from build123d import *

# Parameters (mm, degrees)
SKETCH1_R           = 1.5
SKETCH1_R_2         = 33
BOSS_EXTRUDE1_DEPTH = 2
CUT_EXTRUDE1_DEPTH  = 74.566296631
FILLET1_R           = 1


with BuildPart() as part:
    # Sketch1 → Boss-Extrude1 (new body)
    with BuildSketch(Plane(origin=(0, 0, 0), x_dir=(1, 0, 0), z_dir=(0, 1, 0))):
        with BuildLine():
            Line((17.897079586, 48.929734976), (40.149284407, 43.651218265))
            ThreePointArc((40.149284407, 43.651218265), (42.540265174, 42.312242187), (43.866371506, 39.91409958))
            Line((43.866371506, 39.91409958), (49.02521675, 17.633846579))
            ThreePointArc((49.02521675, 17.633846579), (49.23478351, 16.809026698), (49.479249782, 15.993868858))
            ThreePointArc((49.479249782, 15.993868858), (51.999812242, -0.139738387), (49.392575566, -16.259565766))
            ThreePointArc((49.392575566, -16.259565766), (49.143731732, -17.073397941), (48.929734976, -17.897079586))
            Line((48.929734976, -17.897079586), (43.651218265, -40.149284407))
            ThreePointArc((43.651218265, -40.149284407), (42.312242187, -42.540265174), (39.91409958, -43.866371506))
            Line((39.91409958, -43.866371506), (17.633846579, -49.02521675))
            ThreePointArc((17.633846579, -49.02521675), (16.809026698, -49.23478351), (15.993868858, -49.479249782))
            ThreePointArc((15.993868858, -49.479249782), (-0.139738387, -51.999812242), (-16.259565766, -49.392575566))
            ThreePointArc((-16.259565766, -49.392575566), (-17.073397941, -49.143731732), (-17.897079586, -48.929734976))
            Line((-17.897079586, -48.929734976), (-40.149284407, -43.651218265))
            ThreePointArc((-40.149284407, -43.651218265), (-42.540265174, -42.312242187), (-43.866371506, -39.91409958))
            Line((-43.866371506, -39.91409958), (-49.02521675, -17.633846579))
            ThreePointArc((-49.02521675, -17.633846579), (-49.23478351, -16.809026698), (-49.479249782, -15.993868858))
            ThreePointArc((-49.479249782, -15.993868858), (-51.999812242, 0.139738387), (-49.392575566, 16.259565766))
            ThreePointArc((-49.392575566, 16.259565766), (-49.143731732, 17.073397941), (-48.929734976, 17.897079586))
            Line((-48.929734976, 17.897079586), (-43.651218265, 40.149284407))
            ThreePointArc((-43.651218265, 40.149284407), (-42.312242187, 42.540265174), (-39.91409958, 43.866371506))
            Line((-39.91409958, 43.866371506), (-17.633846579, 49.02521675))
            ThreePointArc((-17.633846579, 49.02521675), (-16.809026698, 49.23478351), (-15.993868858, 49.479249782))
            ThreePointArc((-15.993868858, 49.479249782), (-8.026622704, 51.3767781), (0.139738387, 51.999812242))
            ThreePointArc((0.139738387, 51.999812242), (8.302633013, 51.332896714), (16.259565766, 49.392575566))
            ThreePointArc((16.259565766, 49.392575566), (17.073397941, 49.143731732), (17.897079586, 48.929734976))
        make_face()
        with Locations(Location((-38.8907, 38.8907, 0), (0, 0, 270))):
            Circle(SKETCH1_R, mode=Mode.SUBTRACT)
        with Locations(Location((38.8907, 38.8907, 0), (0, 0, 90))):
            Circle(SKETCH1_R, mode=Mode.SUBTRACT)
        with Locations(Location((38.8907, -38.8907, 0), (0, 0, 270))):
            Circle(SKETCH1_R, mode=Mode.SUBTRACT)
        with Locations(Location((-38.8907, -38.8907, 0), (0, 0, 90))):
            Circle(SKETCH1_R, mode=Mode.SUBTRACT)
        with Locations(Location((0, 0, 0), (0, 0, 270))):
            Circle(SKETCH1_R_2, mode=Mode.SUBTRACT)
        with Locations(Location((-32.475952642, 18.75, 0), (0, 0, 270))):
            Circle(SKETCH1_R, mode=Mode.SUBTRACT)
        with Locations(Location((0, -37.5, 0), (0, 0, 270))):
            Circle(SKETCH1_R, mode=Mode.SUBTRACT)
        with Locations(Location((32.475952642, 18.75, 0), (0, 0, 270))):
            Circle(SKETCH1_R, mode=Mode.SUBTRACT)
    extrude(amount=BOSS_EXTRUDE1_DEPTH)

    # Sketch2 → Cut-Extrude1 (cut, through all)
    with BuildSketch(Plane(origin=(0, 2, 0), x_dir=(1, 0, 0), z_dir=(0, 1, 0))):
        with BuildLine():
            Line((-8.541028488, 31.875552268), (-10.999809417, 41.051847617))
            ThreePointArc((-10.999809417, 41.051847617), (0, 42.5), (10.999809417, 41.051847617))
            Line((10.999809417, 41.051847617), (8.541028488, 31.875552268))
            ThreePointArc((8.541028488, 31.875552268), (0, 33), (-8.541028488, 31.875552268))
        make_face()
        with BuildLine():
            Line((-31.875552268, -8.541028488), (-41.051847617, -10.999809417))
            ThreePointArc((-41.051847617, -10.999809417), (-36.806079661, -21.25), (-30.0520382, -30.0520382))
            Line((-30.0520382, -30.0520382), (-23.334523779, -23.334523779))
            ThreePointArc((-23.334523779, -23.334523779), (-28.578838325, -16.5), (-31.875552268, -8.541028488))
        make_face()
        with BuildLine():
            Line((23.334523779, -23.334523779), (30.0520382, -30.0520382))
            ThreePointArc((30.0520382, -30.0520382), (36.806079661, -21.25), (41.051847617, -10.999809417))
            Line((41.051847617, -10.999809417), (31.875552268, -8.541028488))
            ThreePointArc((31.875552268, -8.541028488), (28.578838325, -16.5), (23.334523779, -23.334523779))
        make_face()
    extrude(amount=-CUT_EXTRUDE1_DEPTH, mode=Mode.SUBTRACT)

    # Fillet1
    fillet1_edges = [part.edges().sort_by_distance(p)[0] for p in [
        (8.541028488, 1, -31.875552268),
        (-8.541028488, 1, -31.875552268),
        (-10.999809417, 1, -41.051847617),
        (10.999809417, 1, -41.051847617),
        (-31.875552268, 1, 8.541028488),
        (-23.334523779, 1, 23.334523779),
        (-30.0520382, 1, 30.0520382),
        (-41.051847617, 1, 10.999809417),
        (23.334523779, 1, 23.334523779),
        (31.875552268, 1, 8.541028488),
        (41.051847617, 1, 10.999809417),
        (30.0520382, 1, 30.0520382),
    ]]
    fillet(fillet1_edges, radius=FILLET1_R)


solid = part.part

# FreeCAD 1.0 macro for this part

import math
import FreeCAD as App
import Part
import Sketcher
Q = App.Units.Quantity


def edges_at(feature, points):
    """Names of the edges that pass closest to the given points."""
    edges = feature.Shape.Edges
    near = lambda p: min(range(len(edges)), key=lambda i: edges[i].distToShape(Part.Vertex(*p))[0])
    return sorted({f"Edge{near(p) + 1}" for p in points})

doc = App.newDocument("Part")
body = doc.addObject("PartDesign::Body", "Body")

sketch1 = doc.addObject("Sketcher::SketchObject", "Sketch")
body.addObject(sketch1)
sketch1.AttachmentSupport = (doc.XZ_Plane, [""])
sketch1.MapMode = "FlatFace"
sketch1.addGeometry(Part.LineSegment(App.Vector(40.1, -43.7, 0), App.Vector(17.9, -48.9, 0)), False)
sketch1.addGeometry(Part.ArcOfCircle(Part.Circle(App.Vector(22.5, -68.4, 0), App.Vector(0, 0, 1), 20), math.radians(103.34), math.radians(108.22)), False)
sketch1.addGeometry(Part.ArcOfCircle(Part.Circle(App.Vector(0, 0, 0), App.Vector(0, 0, 1), 52), math.radians(-89.85), math.radians(-71.78)), False)
sketch1.addGeometry(Part.ArcOfCircle(Part.Circle(App.Vector(0, 0, 0), App.Vector(0, 0, 1), 52), math.radians(-107.91), math.radians(-89.85)), False)
sketch1.addGeometry(Part.ArcOfCircle(Part.Circle(App.Vector(-22.1, -68.5, 0), App.Vector(0, 0, 1), 20), math.radians(72.09), math.radians(76.96)), False)
sketch1.addGeometry(Part.LineSegment(App.Vector(-17.6, -49, 0), App.Vector(-39.9, -43.9, 0)), False)
sketch1.addGeometry(Part.ArcOfCircle(Part.Circle(App.Vector(-38.8, -39, 0), App.Vector(0, 0, 1), 5), math.radians(-167), math.radians(-103)), False)
sketch1.addGeometry(Part.LineSegment(App.Vector(-43.7, -40.1, 0), App.Vector(-48.9, -17.9, 0)), False)
sketch1.addGeometry(Part.ArcOfCircle(Part.Circle(App.Vector(-68.4, -22.5, 0), App.Vector(0, 0, 1), 20), math.radians(13.34), math.radians(18.22)), False)
sketch1.addGeometry(Part.ArcOfCircle(Part.Circle(App.Vector(0, 0, 0), App.Vector(0, 0, 1), 52), math.radians(162), math.radians(198)), False)
sketch1.addGeometry(Part.ArcOfCircle(Part.Circle(App.Vector(-68.5, 22.1, 0), App.Vector(0, 0, 1), 20), math.radians(-17.91), math.radians(-13.04)), False)
sketch1.addGeometry(Part.LineSegment(App.Vector(-49, 17.6, 0), App.Vector(-43.9, 39.9, 0)), False)
sketch1.addGeometry(Part.ArcOfCircle(Part.Circle(App.Vector(-39, 38.8, 0), App.Vector(0, 0, 1), 5), math.radians(103), math.radians(167)), False)
sketch1.addGeometry(Part.LineSegment(App.Vector(-40.1, 43.7, 0), App.Vector(-17.9, 48.9, 0)), False)
sketch1.addGeometry(Part.ArcOfCircle(Part.Circle(App.Vector(-22.5, 68.4, 0), App.Vector(0, 0, 1), 20), math.radians(-76.66), math.radians(-71.78)), False)
sketch1.addGeometry(Part.ArcOfCircle(Part.Circle(App.Vector(0, 0, 0), App.Vector(0, 0, 1), 52), math.radians(72), math.radians(108)), False)
sketch1.addGeometry(Part.ArcOfCircle(Part.Circle(App.Vector(22.1, 68.5, 0), App.Vector(0, 0, 1), 20), math.radians(-107.91), math.radians(-103.04)), False)
sketch1.addGeometry(Part.LineSegment(App.Vector(17.6, 49, 0), App.Vector(39.9, 43.9, 0)), False)
sketch1.addGeometry(Part.ArcOfCircle(Part.Circle(App.Vector(38.8, 39, 0), App.Vector(0, 0, 1), 5), math.radians(13), math.radians(77)), False)
sketch1.addGeometry(Part.LineSegment(App.Vector(43.7, 40.1, 0), App.Vector(48.9, 17.9, 0)), False)
sketch1.addGeometry(Part.ArcOfCircle(Part.Circle(App.Vector(68.4, 22.5, 0), App.Vector(0, 0, 1), 20), math.radians(-166.66), math.radians(-161.78)), False)
sketch1.addGeometry(Part.ArcOfCircle(Part.Circle(App.Vector(0, 0, 0), App.Vector(0, 0, 1), 52), math.radians(-18), math.radians(18)), False)
sketch1.addGeometry(Part.ArcOfCircle(Part.Circle(App.Vector(68.5, -22.1, 0), App.Vector(0, 0, 1), 20), math.radians(162.09), math.radians(166.96)), False)
sketch1.addGeometry(Part.LineSegment(App.Vector(49, -17.6, 0), App.Vector(43.9, -39.9, 0)), False)
sketch1.addGeometry(Part.ArcOfCircle(Part.Circle(App.Vector(39, -38.8, 0), App.Vector(0, 0, 1), 5), math.radians(-77), math.radians(-13)), False)
sketch1.addGeometry(Part.Circle(App.Vector(38.9, 38.9, 0), App.Vector(0, 0, 1), 1.5), False)
sketch1.addGeometry(Part.Circle(App.Vector(0, 37.5, 0), App.Vector(0, 0, 1), 1.5), False)
sketch1.addGeometry(Part.Circle(App.Vector(-38.9, 38.9, 0), App.Vector(0, 0, 1), 1.5), False)
sketch1.addGeometry(Part.Circle(App.Vector(32.5, -18.8, 0), App.Vector(0, 0, 1), 1.5), False)
sketch1.addGeometry(Part.Circle(App.Vector(38.9, -38.9, 0), App.Vector(0, 0, 1), 1.5), False)
sketch1.addGeometry(Part.Circle(App.Vector(0, 0, 0), App.Vector(0, 0, 1), 33), False)
sketch1.addGeometry(Part.Circle(App.Vector(-32.5, -18.8, 0), App.Vector(0, 0, 1), 1.5), False)
sketch1.addGeometry(Part.Circle(App.Vector(-38.9, -38.9, 0), App.Vector(0, 0, 1), 1.5), False)
sketch1.addConstraint(Sketcher.Constraint("Tangent", 0, 2, 1, 1))
sketch1.addConstraint(Sketcher.Constraint("Tangent", 1, 2, 2, 2))
sketch1.addConstraint(Sketcher.Constraint("Tangent", 2, 1, 3, 2))
sketch1.addConstraint(Sketcher.Constraint("Tangent", 3, 1, 4, 1))
sketch1.addConstraint(Sketcher.Constraint("Tangent", 4, 2, 5, 1))
sketch1.addConstraint(Sketcher.Constraint("Tangent", 5, 2, 6, 2))
sketch1.addConstraint(Sketcher.Constraint("Tangent", 6, 1, 7, 1))
sketch1.addConstraint(Sketcher.Constraint("Tangent", 7, 2, 8, 1))
sketch1.addConstraint(Sketcher.Constraint("Tangent", 8, 2, 9, 2))
sketch1.addConstraint(Sketcher.Constraint("Tangent", 9, 1, 10, 1))
sketch1.addConstraint(Sketcher.Constraint("Tangent", 10, 2, 11, 1))
sketch1.addConstraint(Sketcher.Constraint("Tangent", 11, 2, 12, 2))
sketch1.addConstraint(Sketcher.Constraint("Tangent", 12, 1, 13, 1))
sketch1.addConstraint(Sketcher.Constraint("Tangent", 13, 2, 14, 1))
sketch1.addConstraint(Sketcher.Constraint("Tangent", 14, 2, 15, 2))
sketch1.addConstraint(Sketcher.Constraint("Tangent", 15, 1, 16, 1))
sketch1.addConstraint(Sketcher.Constraint("Tangent", 16, 2, 17, 1))
sketch1.addConstraint(Sketcher.Constraint("Tangent", 17, 2, 18, 2))
sketch1.addConstraint(Sketcher.Constraint("Tangent", 18, 1, 19, 1))
sketch1.addConstraint(Sketcher.Constraint("Tangent", 19, 2, 20, 1))
sketch1.addConstraint(Sketcher.Constraint("Tangent", 20, 2, 21, 2))
sketch1.addConstraint(Sketcher.Constraint("Tangent", 21, 1, 22, 1))
sketch1.addConstraint(Sketcher.Constraint("Tangent", 22, 2, 23, 1))
sketch1.addConstraint(Sketcher.Constraint("Tangent", 23, 2, 24, 2))
sketch1.addConstraint(Sketcher.Constraint("Tangent", 24, 1, 0, 1))
sketch1.addConstraint(Sketcher.Constraint("Coincident", 2, 3, -1, 1))
sketch1.addConstraint(Sketcher.Constraint("Coincident", 9, 3, -1, 1))
sketch1.addConstraint(Sketcher.Constraint("Coincident", 15, 3, -1, 1))
sketch1.addConstraint(Sketcher.Constraint("Coincident", 21, 3, -1, 1))
sketch1.addConstraint(Sketcher.Constraint("Coincident", 30, 3, -1, 1))
sketch1.addConstraint(Sketcher.Constraint("Equal", 2, 3))
sketch1.addConstraint(Sketcher.Constraint("Equal", 1, 4))
sketch1.addConstraint(Sketcher.Constraint("Equal", 4, 8))
sketch1.addConstraint(Sketcher.Constraint("Equal", 3, 9))
sketch1.addConstraint(Sketcher.Constraint("Equal", 8, 10))
sketch1.addConstraint(Sketcher.Constraint("Equal", 6, 12))
sketch1.addConstraint(Sketcher.Constraint("Equal", 10, 14))
sketch1.addConstraint(Sketcher.Constraint("Equal", 9, 15))
sketch1.addConstraint(Sketcher.Constraint("Equal", 14, 16))
sketch1.addConstraint(Sketcher.Constraint("Equal", 12, 18))
sketch1.addConstraint(Sketcher.Constraint("Equal", 16, 20))
sketch1.addConstraint(Sketcher.Constraint("Equal", 15, 21))
sketch1.addConstraint(Sketcher.Constraint("Equal", 20, 22))
sketch1.addConstraint(Sketcher.Constraint("Equal", 18, 24))
sketch1.addConstraint(Sketcher.Constraint("Equal", 25, 26))
sketch1.addConstraint(Sketcher.Constraint("Equal", 26, 27))
sketch1.addConstraint(Sketcher.Constraint("Equal", 27, 28))
sketch1.addConstraint(Sketcher.Constraint("Equal", 28, 29))
sketch1.addConstraint(Sketcher.Constraint("Equal", 29, 31))
sketch1.addConstraint(Sketcher.Constraint("Equal", 31, 32))
sketch1.addConstraint(Sketcher.Constraint("Symmetric", 6, 3, 18, 3, -1, 1))
sketch1.addConstraint(Sketcher.Constraint("Symmetric", 12, 3, 24, 3, -1, 1))
sketch1.addConstraint(Sketcher.Constraint("Symmetric", 27, 3, 29, 3, -1, 1))
sketch1.addConstraint(Sketcher.Constraint("Symmetric", 25, 3, 32, 3, -1, 1))
sketch1.addConstraint(Sketcher.Constraint("Symmetric", 25, 3, 27, 3, -2))
sketch1.addConstraint(Sketcher.Constraint("Symmetric", 28, 3, 31, 3, -2))
sketch1.addConstraint(Sketcher.Constraint("PointOnObject", 26, 3, -2))
sketch1.addConstraint(Sketcher.Constraint("Perpendicular", 0, 7))
sketch1.addConstraint(Sketcher.Constraint("Perpendicular", 5, 11))
sketch1.addConstraint(Sketcher.Constraint("Perpendicular", 7, 13))
sketch1.addConstraint(Sketcher.Constraint("Perpendicular", 11, 17))
sketch1.addConstraint(Sketcher.Constraint("Perpendicular", 13, 19))
sketch1.addConstraint(Sketcher.Constraint("Perpendicular", 17, 23))
sketch1.addConstraint(Sketcher.Constraint("Equal", 0, 5))
sketch1.addConstraint(Sketcher.Constraint("Equal", 5, 7))
sketch1.addConstraint(Sketcher.Constraint("Equal", 7, 11))
sketch1.addConstraint(Sketcher.Constraint("Diameter", 25, 3.0))
sketch1.addConstraint(Sketcher.Constraint("Diameter", 30, 66.0))
sketch1.addConstraint(Sketcher.Constraint("Radius", 1, 20.0))
sketch1.addConstraint(Sketcher.Constraint("Radius", 2, 52.0))
sketch1.addConstraint(Sketcher.Constraint("Radius", 6, 5.0))
sketch1.addConstraint(Sketcher.Constraint("DistanceY", -1, 1, 26, 3, 37.5))
sketch1.addConstraint(Sketcher.Constraint("DistanceY", 28, 3, -1, 1, 18.75))
sketch1.addConstraint(Sketcher.Constraint("DistanceY", 6, 3, 8, 3, 16.481998))
sketch1.addConstraint(Sketcher.Constraint("DistanceX", -1, 1, 25, 3, 38.8907))
sketch1.addConstraint(Sketcher.Constraint("DistanceY", -1, 1, 25, 3, 38.8907))
sketch1.addConstraint(Sketcher.Constraint("DistanceX", 5, 2, -1, 1, 39.9141))
sketch1.addConstraint(Sketcher.Constraint("DistanceX", 4, 3, 1, 3, 44.658602))
sketch1.addConstraint(Sketcher.Constraint("DistanceX", -1, 1, 2, 1, 0.139738))
sketch1.addConstraint(Sketcher.Constraint("DistanceX", 28, 3, 24, 3, 6.51929))
pad1 = doc.addObject("PartDesign::Pad", "Pad")
body.addObject(pad1)
pad1.Profile = sketch1
pad1.Length = 2
pad1.Reversed = True

sketch2 = doc.addObject("Sketcher::SketchObject", "Sketch001")
body.addObject(sketch2)
sketch2.AttachmentSupport = (doc.XZ_Plane, [""])
sketch2.MapMode = "FlatFace"
sketch2.AttachmentOffset = App.Placement(App.Vector(0, 0, -2), App.Rotation())
sketch2.addGeometry(Part.LineSegment(App.Vector(-11, -41, 0), App.Vector(-9, -32, 0)), False)
sketch2.addGeometry(Part.ArcOfCircle(Part.Circle(App.Vector(0, 0, 0), App.Vector(0, 0, 1), 33), math.radians(-105), math.radians(-75)), False)
sketch2.addGeometry(Part.LineSegment(App.Vector(9, -32, 0), App.Vector(11, -41, 0)), False)
sketch2.addGeometry(Part.ArcOfCircle(Part.Circle(App.Vector(0, 0, 0), App.Vector(0, 0, 1), 42), math.radians(-105), math.radians(-75)), False)
sketch2.addGeometry(Part.LineSegment(App.Vector(-32, 9, 0), App.Vector(-41, 11, 0)), False)
sketch2.addGeometry(Part.ArcOfCircle(Part.Circle(App.Vector(0, 0, 0), App.Vector(0, 0, 1), 42), math.radians(135), math.radians(165)), False)
sketch2.addGeometry(Part.LineSegment(App.Vector(-30, 30, 0), App.Vector(-23, 23, 0)), False)
sketch2.addGeometry(Part.ArcOfCircle(Part.Circle(App.Vector(0, 0, 0), App.Vector(0, 0, 1), 33), math.radians(135), math.radians(165)), False)
sketch2.addGeometry(Part.LineSegment(App.Vector(23, 23, 0), App.Vector(30, 30, 0)), False)
sketch2.addGeometry(Part.ArcOfCircle(Part.Circle(App.Vector(0, 0, 0), App.Vector(0, 0, 1), 42), math.radians(15), math.radians(45)), False)
sketch2.addGeometry(Part.LineSegment(App.Vector(41, 11, 0), App.Vector(32, 9, 0)), False)
sketch2.addGeometry(Part.ArcOfCircle(Part.Circle(App.Vector(0, 0, 0), App.Vector(0, 0, 1), 33), math.radians(15), math.radians(45)), False)
sketch2.addConstraint(Sketcher.Constraint("Coincident", 0, 2, 1, 1))
sketch2.addConstraint(Sketcher.Constraint("Coincident", 1, 2, 2, 1))
sketch2.addConstraint(Sketcher.Constraint("Coincident", 2, 2, 3, 2))
sketch2.addConstraint(Sketcher.Constraint("Coincident", 3, 1, 0, 1))
sketch2.addConstraint(Sketcher.Constraint("Coincident", 4, 2, 5, 2))
sketch2.addConstraint(Sketcher.Constraint("Coincident", 5, 1, 6, 1))
sketch2.addConstraint(Sketcher.Constraint("Coincident", 6, 2, 7, 1))
sketch2.addConstraint(Sketcher.Constraint("Coincident", 7, 2, 4, 1))
sketch2.addConstraint(Sketcher.Constraint("Coincident", 8, 2, 9, 2))
sketch2.addConstraint(Sketcher.Constraint("Coincident", 9, 1, 10, 1))
sketch2.addConstraint(Sketcher.Constraint("Coincident", 10, 2, 11, 1))
sketch2.addConstraint(Sketcher.Constraint("Coincident", 11, 2, 8, 1))
sketch2.addConstraint(Sketcher.Constraint("Coincident", 1, 3, -1, 1))
sketch2.addConstraint(Sketcher.Constraint("Coincident", 3, 3, -1, 1))
sketch2.addConstraint(Sketcher.Constraint("Coincident", 5, 3, -1, 1))
sketch2.addConstraint(Sketcher.Constraint("Coincident", 7, 3, -1, 1))
sketch2.addConstraint(Sketcher.Constraint("Coincident", 9, 3, -1, 1))
sketch2.addConstraint(Sketcher.Constraint("Coincident", 11, 3, -1, 1))
sketch2.addConstraint(Sketcher.Constraint("Equal", 3, 5))
sketch2.addConstraint(Sketcher.Constraint("Equal", 1, 7))
sketch2.addConstraint(Sketcher.Constraint("Equal", 5, 9))
sketch2.addConstraint(Sketcher.Constraint("Equal", 7, 11))
sketch2.addConstraint(Sketcher.Constraint("Perpendicular", 0, 4))
sketch2.addConstraint(Sketcher.Constraint("Perpendicular", 6, 8))
sketch2.addConstraint(Sketcher.Constraint("Perpendicular", 2, 10))
sketch2.addConstraint(Sketcher.Constraint("Horizontal", 0, 2, 1, 2))
sketch2.addConstraint(Sketcher.Constraint("Horizontal", 2, 2, 3, 1))
sketch2.addConstraint(Sketcher.Constraint("Horizontal", 5, 1, 8, 2))
sketch2.addConstraint(Sketcher.Constraint("Horizontal", 4, 2, 9, 1))
sketch2.addConstraint(Sketcher.Constraint("Horizontal", 6, 2, 11, 2))
sketch2.addConstraint(Sketcher.Constraint("Radius", 1, 33.0))
sketch2.addConstraint(Sketcher.Constraint("Radius", 3, 42.5))
sketch2.addConstraint(Sketcher.Constraint("Angle", 0, Q("75 deg")))
sketch2.addConstraint(Sketcher.Constraint("DistanceX", 0, 2, -1, 1, 8.541028))
sketch2.addConstraint(Sketcher.Constraint("DistanceY", -1, 1, 4, 2, 10.999809))
sketch2.addConstraint(Sketcher.Constraint("DistanceX", 5, 1, -1, 1, 30.052038))
pocket1 = doc.addObject("PartDesign::Pocket", "Pocket")
body.addObject(pocket1)
pocket1.Profile = sketch2
pocket1.Type = "ThroughAll"
pocket1.Reversed = True
doc.recompute()

fillet = doc.addObject("PartDesign::Fillet", "Fillet")
body.addObject(fillet)
fillet.Base = (pocket1, edges_at(pocket1, [
    (8.541, 1, -31.876),
    (-8.541, 1, -31.876),
    (-11, 1, -41.052),
    (11, 1, -41.052),
    (-31.876, 1, 8.541),
    (-23.335, 1, 23.335),
    (-30.052, 1, 30.052),
    (-41.052, 1, 11),
    (23.335, 1, 23.335),
    (31.876, 1, 8.541),
    (41.052, 1, 11),
    (30.052, 1, 30.052),
]))
fillet.Radius = 1

doc.recompute()
